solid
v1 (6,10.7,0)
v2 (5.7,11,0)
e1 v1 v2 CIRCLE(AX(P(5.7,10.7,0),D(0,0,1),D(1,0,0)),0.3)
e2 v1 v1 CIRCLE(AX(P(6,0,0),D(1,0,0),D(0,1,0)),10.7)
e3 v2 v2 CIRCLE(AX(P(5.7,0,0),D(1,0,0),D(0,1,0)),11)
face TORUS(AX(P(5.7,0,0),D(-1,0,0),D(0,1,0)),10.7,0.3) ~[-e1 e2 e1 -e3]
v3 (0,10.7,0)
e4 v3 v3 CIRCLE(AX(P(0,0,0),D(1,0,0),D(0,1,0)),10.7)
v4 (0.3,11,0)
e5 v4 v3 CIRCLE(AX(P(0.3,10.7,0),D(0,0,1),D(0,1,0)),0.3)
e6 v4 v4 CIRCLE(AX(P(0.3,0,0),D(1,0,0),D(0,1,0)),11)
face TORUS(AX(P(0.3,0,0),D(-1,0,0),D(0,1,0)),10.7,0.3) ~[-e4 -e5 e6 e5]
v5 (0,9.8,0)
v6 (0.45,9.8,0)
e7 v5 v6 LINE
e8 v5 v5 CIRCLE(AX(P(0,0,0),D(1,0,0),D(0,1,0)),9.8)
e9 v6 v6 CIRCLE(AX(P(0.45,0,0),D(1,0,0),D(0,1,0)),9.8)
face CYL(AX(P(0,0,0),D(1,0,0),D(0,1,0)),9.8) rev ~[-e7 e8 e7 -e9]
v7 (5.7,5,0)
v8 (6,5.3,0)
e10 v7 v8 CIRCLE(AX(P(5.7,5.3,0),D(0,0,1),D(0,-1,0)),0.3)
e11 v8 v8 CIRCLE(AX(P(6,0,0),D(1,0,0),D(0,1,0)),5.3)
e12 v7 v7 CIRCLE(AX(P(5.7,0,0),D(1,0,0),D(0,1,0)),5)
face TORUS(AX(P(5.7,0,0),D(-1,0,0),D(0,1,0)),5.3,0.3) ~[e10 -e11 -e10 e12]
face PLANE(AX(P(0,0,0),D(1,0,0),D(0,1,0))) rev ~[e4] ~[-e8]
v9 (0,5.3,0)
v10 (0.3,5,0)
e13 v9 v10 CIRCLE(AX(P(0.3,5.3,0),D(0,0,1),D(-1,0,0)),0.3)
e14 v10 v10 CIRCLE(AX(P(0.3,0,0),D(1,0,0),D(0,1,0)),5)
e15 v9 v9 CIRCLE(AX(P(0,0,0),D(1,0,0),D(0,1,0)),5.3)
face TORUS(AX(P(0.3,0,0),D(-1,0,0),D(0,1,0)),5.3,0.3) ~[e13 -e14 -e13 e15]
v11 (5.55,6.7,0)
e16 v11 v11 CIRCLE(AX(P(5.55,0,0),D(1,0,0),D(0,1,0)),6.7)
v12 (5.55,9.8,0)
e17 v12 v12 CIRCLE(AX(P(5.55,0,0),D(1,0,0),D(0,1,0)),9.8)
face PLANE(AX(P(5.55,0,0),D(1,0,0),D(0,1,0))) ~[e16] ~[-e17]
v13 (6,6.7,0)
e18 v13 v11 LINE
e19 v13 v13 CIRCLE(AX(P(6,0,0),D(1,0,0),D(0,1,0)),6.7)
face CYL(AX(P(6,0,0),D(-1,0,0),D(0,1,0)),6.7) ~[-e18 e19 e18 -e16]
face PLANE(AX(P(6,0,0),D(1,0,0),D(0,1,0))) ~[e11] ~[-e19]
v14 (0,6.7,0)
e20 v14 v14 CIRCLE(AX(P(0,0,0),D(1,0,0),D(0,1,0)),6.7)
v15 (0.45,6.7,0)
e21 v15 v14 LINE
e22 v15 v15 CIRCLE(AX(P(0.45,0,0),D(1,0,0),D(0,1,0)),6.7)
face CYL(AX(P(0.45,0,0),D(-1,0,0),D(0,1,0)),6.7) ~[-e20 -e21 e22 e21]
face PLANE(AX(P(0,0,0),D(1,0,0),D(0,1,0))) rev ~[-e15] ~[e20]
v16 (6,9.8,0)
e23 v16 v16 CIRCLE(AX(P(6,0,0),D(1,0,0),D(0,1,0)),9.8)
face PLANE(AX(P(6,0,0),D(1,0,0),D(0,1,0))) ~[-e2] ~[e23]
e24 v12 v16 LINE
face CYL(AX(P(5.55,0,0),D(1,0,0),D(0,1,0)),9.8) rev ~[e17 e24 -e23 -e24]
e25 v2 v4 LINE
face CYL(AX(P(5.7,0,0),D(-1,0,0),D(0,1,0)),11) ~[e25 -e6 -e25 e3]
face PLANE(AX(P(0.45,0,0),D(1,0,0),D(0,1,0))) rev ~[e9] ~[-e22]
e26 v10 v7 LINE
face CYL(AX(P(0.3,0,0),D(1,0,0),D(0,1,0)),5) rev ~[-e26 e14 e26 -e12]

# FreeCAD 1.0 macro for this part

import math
import FreeCAD as App
import Part
import Sketcher
from FreeCAD import Vector

doc = App.newDocument("Part")
body = doc.addObject("PartDesign::Body", "Body")

sketch1 = body.newObject("Sketcher::SketchObject", "Sketch")
sketch1.AttachmentSupport = (doc.getObject("XY_Plane"), [""])
sketch1.MapMode = "FlatFace"
sketch1.addGeometry([
    Part.LineSegment(Vector(0, 6.7, 0), Vector(0, 5.3, 0)),
    Part.ArcOfCircle(Part.Circle(Vector(0.3, 5.3, 0), Vector(0, 0, 1), 0.3), math.radians(180), math.radians(270)),
    Part.LineSegment(Vector(0.3, 5, 0), Vector(5.7, 5, 0)),
    Part.ArcOfCircle(Part.Circle(Vector(5.7, 5.3, 0), Vector(0, 0, 1), 0.3), math.radians(-90), math.radians(0)),
    Part.LineSegment(Vector(6, 5.3, 0), Vector(6, 6.7, 0)),
    Part.LineSegment(Vector(6, 6.7, 0), Vector(5.55, 6.7, 0)),
    Part.LineSegment(Vector(5.55, 6.7, 0), Vector(5.55, 9.8, 0)),
    Part.LineSegment(Vector(5.55, 9.8, 0), Vector(6, 9.8, 0)),
    Part.LineSegment(Vector(6, 9.8, 0), Vector(6, 10.7, 0)),
    Part.ArcOfCircle(Part.Circle(Vector(5.7, 10.7, 0), Vector(0, 0, 1), 0.3), math.radians(0), math.radians(90)),
    Part.LineSegment(Vector(5.7, 11, 0), Vector(0.3, 11, 0)),
    Part.ArcOfCircle(Part.Circle(Vector(0.3, 10.7, 0), Vector(0, 0, 1), 0.3), math.radians(90), math.radians(180)),
    Part.LineSegment(Vector(0, 10.7, 0), Vector(0, 9.8, 0)),
    Part.LineSegment(Vector(0, 9.8, 0), Vector(0.45, 9.8, 0)),
    Part.LineSegment(Vector(0.45, 9.8, 0), Vector(0.45, 6.7, 0)),
    Part.LineSegment(Vector(0.45, 6.7, 0), Vector(0, 6.7, 0)),
], False)
sketch1.addConstraint([
    Sketcher.Constraint("Tangent", 0, 2, 1, 1),
    Sketcher.Constraint("Tangent", 1, 2, 2, 1),
    Sketcher.Constraint("Tangent", 2, 2, 3, 1),
    Sketcher.Constraint("Tangent", 3, 2, 4, 1),
    Sketcher.Constraint("Coincident", 4, 2, 5, 1),
    Sketcher.Constraint("Coincident", 5, 2, 6, 1),
    Sketcher.Constraint("Coincident", 6, 2, 7, 1),
    Sketcher.Constraint("Coincident", 7, 2, 8, 1),
    Sketcher.Constraint("Tangent", 8, 2, 9, 1),
    Sketcher.Constraint("Tangent", 9, 2, 10, 1),
    Sketcher.Constraint("Tangent", 10, 2, 11, 1),
    Sketcher.Constraint("Tangent", 11, 2, 12, 1),
    Sketcher.Constraint("Coincident", 12, 2, 13, 1),
    Sketcher.Constraint("Coincident", 13, 2, 14, 1),
    Sketcher.Constraint("Coincident", 14, 2, 15, 1),
    Sketcher.Constraint("Coincident", 15, 2, 0, 1),
    Sketcher.Constraint("Vertical", 0),
    Sketcher.Constraint("Horizontal", 2),
    Sketcher.Constraint("Vertical", 4),
    Sketcher.Constraint("Horizontal", 5),
    Sketcher.Constraint("Vertical", 6),
    Sketcher.Constraint("Horizontal", 7),
    Sketcher.Constraint("Vertical", 8),
    Sketcher.Constraint("Horizontal", 10),
    Sketcher.Constraint("Vertical", 12),
    Sketcher.Constraint("Horizontal", 13),
    Sketcher.Constraint("Vertical", 14),
    Sketcher.Constraint("Horizontal", 15),
    Sketcher.Constraint("Equal", 1, 3),
    Sketcher.Constraint("Equal", 3, 9),
    Sketcher.Constraint("Equal", 9, 11),
    Sketcher.Constraint("PointOnObject", 0, 2, -2),
    Sketcher.Constraint("PointOnObject", 11, 2, -2),
    Sketcher.Constraint("Horizontal", 7, 2, 12, 2),
    Sketcher.Constraint("Horizontal", 5, 2, 14, 2),
    Sketcher.Constraint("Vertical", 3, 3, 9, 3),
    Sketcher.Constraint("Equal", 7, 13),
    Sketcher.Constraint("Radius", 1, 0.3),
    Sketcher.Constraint("DistanceX", 2, 1, 2, 2, 5.4),
    Sketcher.Constraint("DistanceY", 0, 2, 0, 1, 1.4),
    Sketcher.Constraint("DistanceY", 6, 1, 6, 2, 3.1),
    Sketcher.Constraint("DistanceY", 8, 1, 8, 2, 0.9),
    Sketcher.Constraint("DistanceY", -1, 1, 1, 2, 5.0),
    Sketcher.Constraint("DistanceX", 5, 2, 5, 1, 0.45),
])
revolution = body.newObject("PartDesign::Revolution", "Revolution")
revolution.Profile = sketch1
revolution.ReferenceAxis = (sketch1, ["H_Axis"])
revolution.Angle = 360

doc.recompute()
